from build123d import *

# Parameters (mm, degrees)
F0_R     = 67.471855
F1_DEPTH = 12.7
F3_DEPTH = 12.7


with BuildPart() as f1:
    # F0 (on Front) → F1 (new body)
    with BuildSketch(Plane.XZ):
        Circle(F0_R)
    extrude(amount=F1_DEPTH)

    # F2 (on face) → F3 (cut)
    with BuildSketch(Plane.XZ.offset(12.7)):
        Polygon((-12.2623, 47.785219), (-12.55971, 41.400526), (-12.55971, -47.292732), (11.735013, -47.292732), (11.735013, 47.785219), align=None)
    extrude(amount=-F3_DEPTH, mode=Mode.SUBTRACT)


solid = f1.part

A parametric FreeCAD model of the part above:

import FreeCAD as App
import Part
import Sketcher
from FreeCAD import Vector
Q = App.Units.Quantity


def add_polygon(sketch, points):
    """Adds a closed chain of lines whose ends are joined by coincident constraints."""
    first, n = sketch.GeometryCount, len(points)
    for a, b in zip(points, points[1:] + points[:1]):
        sketch.addGeometry(Part.LineSegment(App.Vector(*a, 0), App.Vector(*b, 0)), False)
    for i in range(n):
        sketch.addConstraint(Sketcher.Constraint("Coincident", first + i, 2, first + (i + 1) % n, 1))

doc = App.newDocument("Part")
body = doc.addObject("PartDesign::Body", "Body")

# Sketch on XZ plane
sketch1 = body.newObject("Sketcher::SketchObject", "Sketch")
sketch1.AttachmentSupport = (doc.getObject("XZ_Plane"), [""])
sketch1.MapMode = "FlatFace"
sketch1.addGeometry(Part.Circle(Vector(0, 0, 0), Vector(0, 0, 1), 67), False)
sketch1.addConstraint([
    Sketcher.Constraint("Coincident", 0, 3, -1, 1),
    Sketcher.Constraint("Diameter", 0, 134.94371),
])
pad1 = body.newObject("PartDesign::Pad", "Pad")
pad1.Profile = sketch1
pad1.Length = Q("0.5 in")

# Sketch on XZ plane
sketch2 = body.newObject("Sketcher::SketchObject", "Sketch001")
sketch2.AttachmentSupport = (doc.getObject("XZ_Plane"), [""])
sketch2.MapMode = "FlatFace"
sketch2.AttachmentOffset = App.Placement(Vector(0, 0, 0.5 * 25.4), App.Rotation())
add_polygon(sketch2, [(-12, 48), (-13, 41), (-13, -47), (12, -47), (12, 48)])  # lines 0-4
sketch2.addConstraint([
    Sketcher.Constraint("Vertical", 1),
    Sketcher.Constraint("Horizontal", 2),
    Sketcher.Constraint("Vertical", 3),
    Sketcher.Constraint("Horizontal", 4),
    Sketcher.Constraint("DistanceY", 1, 2, 1, 1, 88.693258),
    Sketcher.Constraint("DistanceY", 3, 1, 3, 2, 95.077951),
    Sketcher.Constraint("DistanceX", 4, 2, -1, 1, 12.2623),
    Sketcher.Constraint("DistanceX", 2, 1, 2, 2, 24.294723),
    Sketcher.Constraint("DistanceX", 4, 2, 4, 1, 23.997313),
    Sketcher.Constraint("DistanceY", -1, 1, 3, 2, 47.785219),
])
pocket1 = body.newObject("PartDesign::Pocket", "Pocket")
pocket1.Profile = sketch2
pocket1.Length = Q("0.5 in")

doc.recompute()
